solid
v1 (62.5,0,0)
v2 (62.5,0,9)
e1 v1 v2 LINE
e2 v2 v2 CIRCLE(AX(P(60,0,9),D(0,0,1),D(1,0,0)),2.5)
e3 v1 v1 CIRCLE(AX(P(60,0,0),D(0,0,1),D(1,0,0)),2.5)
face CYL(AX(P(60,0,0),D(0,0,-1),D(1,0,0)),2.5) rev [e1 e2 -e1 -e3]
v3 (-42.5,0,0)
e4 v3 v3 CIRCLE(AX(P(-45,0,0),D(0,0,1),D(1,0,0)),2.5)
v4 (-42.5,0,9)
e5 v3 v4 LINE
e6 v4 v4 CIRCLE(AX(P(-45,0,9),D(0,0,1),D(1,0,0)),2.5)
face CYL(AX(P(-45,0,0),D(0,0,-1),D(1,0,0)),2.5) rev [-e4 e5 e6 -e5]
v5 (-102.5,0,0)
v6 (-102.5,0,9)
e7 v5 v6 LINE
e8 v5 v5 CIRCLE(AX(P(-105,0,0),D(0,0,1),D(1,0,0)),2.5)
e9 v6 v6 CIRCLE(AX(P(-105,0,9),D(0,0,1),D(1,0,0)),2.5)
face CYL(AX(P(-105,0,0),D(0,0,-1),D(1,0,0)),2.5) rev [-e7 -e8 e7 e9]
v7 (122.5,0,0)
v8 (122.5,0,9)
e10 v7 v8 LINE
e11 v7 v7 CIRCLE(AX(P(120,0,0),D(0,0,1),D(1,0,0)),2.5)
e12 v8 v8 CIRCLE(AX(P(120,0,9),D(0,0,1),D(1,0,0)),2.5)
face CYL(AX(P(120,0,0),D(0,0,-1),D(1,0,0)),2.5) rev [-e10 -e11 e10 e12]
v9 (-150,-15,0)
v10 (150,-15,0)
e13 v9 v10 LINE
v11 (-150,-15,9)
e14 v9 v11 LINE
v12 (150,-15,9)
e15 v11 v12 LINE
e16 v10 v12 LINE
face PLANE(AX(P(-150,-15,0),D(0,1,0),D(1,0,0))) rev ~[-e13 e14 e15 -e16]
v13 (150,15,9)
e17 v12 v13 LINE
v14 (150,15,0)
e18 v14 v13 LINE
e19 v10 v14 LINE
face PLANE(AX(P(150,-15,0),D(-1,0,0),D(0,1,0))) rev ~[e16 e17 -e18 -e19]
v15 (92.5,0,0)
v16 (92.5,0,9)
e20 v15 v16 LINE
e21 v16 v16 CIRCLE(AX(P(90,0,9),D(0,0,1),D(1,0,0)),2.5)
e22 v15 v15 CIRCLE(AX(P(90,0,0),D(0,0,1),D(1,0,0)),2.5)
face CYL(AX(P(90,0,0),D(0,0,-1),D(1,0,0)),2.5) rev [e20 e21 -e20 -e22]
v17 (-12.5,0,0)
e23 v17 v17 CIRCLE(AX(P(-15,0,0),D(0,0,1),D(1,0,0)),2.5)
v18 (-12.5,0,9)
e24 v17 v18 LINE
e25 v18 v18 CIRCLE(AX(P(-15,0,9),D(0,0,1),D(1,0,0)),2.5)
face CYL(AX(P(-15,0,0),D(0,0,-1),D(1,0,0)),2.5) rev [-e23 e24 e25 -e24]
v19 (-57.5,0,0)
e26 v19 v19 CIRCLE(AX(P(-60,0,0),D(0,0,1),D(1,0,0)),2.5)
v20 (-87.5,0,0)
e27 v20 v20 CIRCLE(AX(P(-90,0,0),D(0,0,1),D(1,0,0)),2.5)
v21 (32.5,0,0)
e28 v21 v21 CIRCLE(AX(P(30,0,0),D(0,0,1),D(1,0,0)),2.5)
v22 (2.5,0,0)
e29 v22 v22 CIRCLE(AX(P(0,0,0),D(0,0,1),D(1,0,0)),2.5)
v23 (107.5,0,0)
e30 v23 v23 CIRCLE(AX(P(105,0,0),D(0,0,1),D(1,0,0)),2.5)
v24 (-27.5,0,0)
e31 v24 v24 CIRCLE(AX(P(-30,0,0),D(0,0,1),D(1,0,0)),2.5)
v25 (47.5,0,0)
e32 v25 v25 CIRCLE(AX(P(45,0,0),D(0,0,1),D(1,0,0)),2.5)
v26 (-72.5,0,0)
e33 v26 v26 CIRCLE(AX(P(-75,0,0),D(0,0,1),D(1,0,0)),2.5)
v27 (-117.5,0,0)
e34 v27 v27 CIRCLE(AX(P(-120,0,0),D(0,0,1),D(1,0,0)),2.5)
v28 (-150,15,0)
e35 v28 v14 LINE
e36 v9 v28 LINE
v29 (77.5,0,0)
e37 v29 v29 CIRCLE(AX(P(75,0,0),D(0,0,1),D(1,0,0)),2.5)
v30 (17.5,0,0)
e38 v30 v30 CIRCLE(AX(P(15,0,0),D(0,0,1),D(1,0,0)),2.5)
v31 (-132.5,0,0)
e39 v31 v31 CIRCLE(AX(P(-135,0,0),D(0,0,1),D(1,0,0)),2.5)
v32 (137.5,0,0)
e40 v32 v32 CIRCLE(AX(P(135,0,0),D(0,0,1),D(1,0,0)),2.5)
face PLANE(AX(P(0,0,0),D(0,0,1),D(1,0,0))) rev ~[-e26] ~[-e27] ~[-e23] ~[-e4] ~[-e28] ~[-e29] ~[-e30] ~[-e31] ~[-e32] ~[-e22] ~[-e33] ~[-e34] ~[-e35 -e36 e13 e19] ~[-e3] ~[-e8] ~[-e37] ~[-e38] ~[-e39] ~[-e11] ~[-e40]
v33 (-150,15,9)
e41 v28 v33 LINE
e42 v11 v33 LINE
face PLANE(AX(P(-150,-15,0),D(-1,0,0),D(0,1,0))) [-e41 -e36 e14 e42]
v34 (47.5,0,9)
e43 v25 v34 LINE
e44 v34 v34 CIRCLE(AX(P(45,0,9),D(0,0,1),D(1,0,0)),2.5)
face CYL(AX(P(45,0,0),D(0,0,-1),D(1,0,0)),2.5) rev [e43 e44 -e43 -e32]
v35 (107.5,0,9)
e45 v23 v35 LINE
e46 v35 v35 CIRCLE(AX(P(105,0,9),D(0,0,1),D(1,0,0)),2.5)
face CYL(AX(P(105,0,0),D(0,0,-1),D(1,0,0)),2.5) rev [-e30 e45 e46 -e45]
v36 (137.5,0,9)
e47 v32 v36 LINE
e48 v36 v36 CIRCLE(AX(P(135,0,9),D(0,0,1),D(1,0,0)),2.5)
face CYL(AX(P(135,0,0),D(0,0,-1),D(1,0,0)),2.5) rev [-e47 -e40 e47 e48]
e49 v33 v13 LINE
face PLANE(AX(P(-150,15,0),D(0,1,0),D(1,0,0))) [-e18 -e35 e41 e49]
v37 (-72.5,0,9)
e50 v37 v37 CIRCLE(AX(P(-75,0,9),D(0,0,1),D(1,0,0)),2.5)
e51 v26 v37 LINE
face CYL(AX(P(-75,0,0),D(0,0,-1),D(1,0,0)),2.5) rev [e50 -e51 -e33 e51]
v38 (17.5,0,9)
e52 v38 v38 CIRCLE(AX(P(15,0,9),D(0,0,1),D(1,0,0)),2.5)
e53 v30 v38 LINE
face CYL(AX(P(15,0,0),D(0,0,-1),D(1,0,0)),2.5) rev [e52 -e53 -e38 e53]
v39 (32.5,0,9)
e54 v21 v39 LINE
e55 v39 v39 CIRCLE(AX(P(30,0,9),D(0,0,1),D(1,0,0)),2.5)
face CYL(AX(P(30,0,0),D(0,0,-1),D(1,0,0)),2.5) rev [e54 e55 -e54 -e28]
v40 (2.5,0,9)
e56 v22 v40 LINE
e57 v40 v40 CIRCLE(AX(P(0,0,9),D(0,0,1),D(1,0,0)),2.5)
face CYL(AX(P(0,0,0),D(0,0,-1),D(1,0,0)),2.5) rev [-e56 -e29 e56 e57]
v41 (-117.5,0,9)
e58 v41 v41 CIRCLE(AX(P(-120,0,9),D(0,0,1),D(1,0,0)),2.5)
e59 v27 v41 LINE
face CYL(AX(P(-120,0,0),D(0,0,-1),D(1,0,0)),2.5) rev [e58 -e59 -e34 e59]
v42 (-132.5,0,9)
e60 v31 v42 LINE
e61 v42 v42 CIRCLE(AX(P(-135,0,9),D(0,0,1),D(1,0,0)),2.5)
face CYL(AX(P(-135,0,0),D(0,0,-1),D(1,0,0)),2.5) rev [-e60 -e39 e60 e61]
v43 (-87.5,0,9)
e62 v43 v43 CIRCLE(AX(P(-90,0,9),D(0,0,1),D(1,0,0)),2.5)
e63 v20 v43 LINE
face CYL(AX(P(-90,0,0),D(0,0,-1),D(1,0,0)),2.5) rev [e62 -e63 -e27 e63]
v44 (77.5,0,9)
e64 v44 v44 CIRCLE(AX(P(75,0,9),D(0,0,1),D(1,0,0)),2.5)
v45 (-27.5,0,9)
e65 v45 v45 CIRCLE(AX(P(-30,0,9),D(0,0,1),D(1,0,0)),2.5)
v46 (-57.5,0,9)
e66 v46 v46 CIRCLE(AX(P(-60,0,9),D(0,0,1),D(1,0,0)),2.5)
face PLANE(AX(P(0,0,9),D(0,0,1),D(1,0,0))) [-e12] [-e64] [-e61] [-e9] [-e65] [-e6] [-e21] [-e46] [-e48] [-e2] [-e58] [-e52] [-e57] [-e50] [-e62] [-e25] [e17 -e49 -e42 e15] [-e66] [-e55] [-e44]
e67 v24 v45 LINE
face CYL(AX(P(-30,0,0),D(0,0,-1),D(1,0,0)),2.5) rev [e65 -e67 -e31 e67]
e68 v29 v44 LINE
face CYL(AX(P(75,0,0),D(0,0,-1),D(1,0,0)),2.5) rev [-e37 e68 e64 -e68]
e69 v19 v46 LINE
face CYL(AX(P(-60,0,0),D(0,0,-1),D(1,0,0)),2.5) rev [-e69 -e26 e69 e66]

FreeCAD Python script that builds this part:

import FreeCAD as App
import Part
import Sketcher

V = App.Vector
Q = App.Units.Quantity

doc = App.newDocument("Part")
params = doc.addObject("Spreadsheet::Sheet", "Params")
for row, (alias, value) in enumerate([
    ("sketch1_diameter", "5 mm"),
    ("sketch1_width", "300 mm"),
    ("sketch1_height", "30 mm"),
    ("pad1_length", "9 mm"),
], start=1):
    params.set(f"A{row}", alias)
    params.set(f"B{row}", "=" + value)
    params.setAlias(f"B{row}", alias)

body = doc.addObject("PartDesign::Body", "Body")

# Sketch on XY plane
sketch1 = doc.addObject("Sketcher::SketchObject", "Sketch")
body.addObject(sketch1)
sketch1.AttachmentSupport = (doc.XY_Plane, [""])
sketch1.MapMode = "FlatFace"
sketch1.addGeometry([
    Part.LineSegment(V(-150, 15, 0), V(-150, -15, 0)),  # 0
    Part.LineSegment(V(-150, -15, 0), V(150, -15, 0)),  # 1
    Part.LineSegment(V(150, -15, 0), V(150, 15, 0)),  # 2
    Part.LineSegment(V(150, 15, 0), V(-150, 15, 0)),  # 3
    Part.Circle(V(-135, 0, 0), V(0, 0, 1), 2.5),  # 4
    Part.Circle(V(-120, 0, 0), V(0, 0, 1), 2.5),  # 5
    Part.Circle(V(-105, 0, 0), V(0, 0, 1), 2.5),  # 6
    Part.Circle(V(-90, 0, 0), V(0, 0, 1), 2.5),  # 7
    Part.Circle(V(-75, 0, 0), V(0, 0, 1), 2.5),  # 8
    Part.Circle(V(-60, 0, 0), V(0, 0, 1), 2.5),  # 9
    Part.Circle(V(-45, 0, 0), V(0, 0, 1), 2.5),  # 10
    Part.Circle(V(-30, 0, 0), V(0, 0, 1), 2.5),  # 11
    Part.Circle(V(-15, 0, 0), V(0, 0, 1), 2.5),  # 12
    Part.Circle(V(0, 0, 0), V(0, 0, 1), 2.5),  # 13
    Part.Circle(V(15, 0, 0), V(0, 0, 1), 2.5),  # 14
    Part.Circle(V(30, 0, 0), V(0, 0, 1), 2.5),  # 15
    Part.Circle(V(45, 0, 0), V(0, 0, 1), 2.5),  # 16
    Part.Circle(V(60, 0, 0), V(0, 0, 1), 2.5),  # 17
    Part.Circle(V(75, 0, 0), V(0, 0, 1), 2.5),  # 18
    Part.Circle(V(90, 0, 0), V(0, 0, 1), 2.5),  # 19
    Part.Circle(V(105, 0, 0), V(0, 0, 1), 2.5),  # 20
    Part.Circle(V(120, 0, 0), V(0, 0, 1), 2.5),  # 21
    Part.Circle(V(135, 0, 0), V(0, 0, 1), 2.5),  # 22
], False)
sketch1.addConstraint([
    Sketcher.Constraint("Coincident", 0, 2, 1, 1),
    Sketcher.Constraint("Coincident", 1, 2, 2, 1),
    Sketcher.Constraint("Coincident", 2, 2, 3, 1),
    Sketcher.Constraint("Coincident", 3, 2, 0, 1),
    Sketcher.Constraint("Vertical", 0),
    Sketcher.Constraint("Horizontal", 1),
    Sketcher.Constraint("Vertical", 2),
    Sketcher.Constraint("Horizontal", 3),
    Sketcher.Constraint("Coincident", 13, 3, -1, 1),
    Sketcher.Constraint("Equal", 4, 5),
    Sketcher.Constraint("Equal", 5, 6),
    Sketcher.Constraint("Equal", 6, 7),
    Sketcher.Constraint("Equal", 7, 8),
    Sketcher.Constraint("Equal", 8, 9),
    Sketcher.Constraint("Equal", 9, 10),
    Sketcher.Constraint("Equal", 10, 11),
    Sketcher.Constraint("Equal", 11, 12),
    Sketcher.Constraint("Equal", 12, 13),
    Sketcher.Constraint("Equal", 13, 14),
    Sketcher.Constraint("Equal", 14, 15),
    Sketcher.Constraint("Equal", 15, 16),
    Sketcher.Constraint("Equal", 16, 17),
    Sketcher.Constraint("Equal", 17, 18),
    Sketcher.Constraint("Equal", 18, 19),
    Sketcher.Constraint("Equal", 19, 20),
    Sketcher.Constraint("Equal", 20, 21),
    Sketcher.Constraint("Equal", 21, 22),
    Sketcher.Constraint("Symmetric", 12, 3, 14, 3, -1, 1),
    Sketcher.Constraint("Symmetric", 11, 3, 15, 3, -1, 1),
    Sketcher.Constraint("Symmetric", 10, 3, 16, 3, -1, 1),
    Sketcher.Constraint("Symmetric", 9, 3, 17, 3, -1, 1),
    Sketcher.Constraint("Symmetric", 8, 3, 18, 3, -1, 1),
    Sketcher.Constraint("Symmetric", 7, 3, 19, 3, -1, 1),
    Sketcher.Constraint("Symmetric", 6, 3, 20, 3, -1, 1),
    Sketcher.Constraint("Symmetric", 5, 3, 21, 3, -1, 1),
    Sketcher.Constraint("Symmetric", 4, 3, 22, 3, -1, 1),
    Sketcher.Constraint("Symmetric", 0, 2, 2, 2, -1, 1),
    Sketcher.Constraint("PointOnObject", 4, 3, -1),
    Sketcher.Constraint("PointOnObject", 5, 3, -1),
    Sketcher.Constraint("PointOnObject", 6, 3, -1),
    Sketcher.Constraint("PointOnObject", 7, 3, -1),
    Sketcher.Constraint("PointOnObject", 8, 3, -1),
    Sketcher.Constraint("PointOnObject", 9, 3, -1),
    Sketcher.Constraint("PointOnObject", 10, 3, -1),
    Sketcher.Constraint("PointOnObject", 11, 3, -1),
    Sketcher.Constraint("PointOnObject", 12, 3, -1),
    Sketcher.Constraint("Diameter", 4, Q("5 mm")),
    Sketcher.Constraint("DistanceX", 1, 1, 1, 2, Q("300 mm")),
    Sketcher.Constraint("DistanceY", 0, 2, 0, 1, Q("30 mm")),
    Sketcher.Constraint("DistanceX", 4, 3, -1, 1, Q("135 mm")),
    Sketcher.Constraint("DistanceX", 5, 3, -1, 1, Q("120 mm")),
    Sketcher.Constraint("DistanceX", 6, 3, -1, 1, Q("105 mm")),
    Sketcher.Constraint("DistanceX", 7, 3, -1, 1, Q("90 mm")),
    Sketcher.Constraint("DistanceX", 8, 3, -1, 1, Q("75 mm")),
    Sketcher.Constraint("DistanceX", 9, 3, -1, 1, Q("60 mm")),
    Sketcher.Constraint("DistanceX", 10, 3, -1, 1, Q("45 mm")),
    Sketcher.Constraint("DistanceX", 11, 3, -1, 1, Q("30 mm")),
    Sketcher.Constraint("DistanceX", 12, 3, -1, 1, Q("15 mm")),
])
sketch1.setExpression("Constraints[46]", "Params.sketch1_diameter")
sketch1.setExpression("Constraints[47]", "Params.sketch1_width")
sketch1.setExpression("Constraints[48]", "Params.sketch1_height")
pad1 = doc.addObject("PartDesign::Pad", "Pad")
body.addObject(pad1)
pad1.Profile = sketch1
pad1.setExpression("Length", "Params.pad1_length")

doc.recompute()
